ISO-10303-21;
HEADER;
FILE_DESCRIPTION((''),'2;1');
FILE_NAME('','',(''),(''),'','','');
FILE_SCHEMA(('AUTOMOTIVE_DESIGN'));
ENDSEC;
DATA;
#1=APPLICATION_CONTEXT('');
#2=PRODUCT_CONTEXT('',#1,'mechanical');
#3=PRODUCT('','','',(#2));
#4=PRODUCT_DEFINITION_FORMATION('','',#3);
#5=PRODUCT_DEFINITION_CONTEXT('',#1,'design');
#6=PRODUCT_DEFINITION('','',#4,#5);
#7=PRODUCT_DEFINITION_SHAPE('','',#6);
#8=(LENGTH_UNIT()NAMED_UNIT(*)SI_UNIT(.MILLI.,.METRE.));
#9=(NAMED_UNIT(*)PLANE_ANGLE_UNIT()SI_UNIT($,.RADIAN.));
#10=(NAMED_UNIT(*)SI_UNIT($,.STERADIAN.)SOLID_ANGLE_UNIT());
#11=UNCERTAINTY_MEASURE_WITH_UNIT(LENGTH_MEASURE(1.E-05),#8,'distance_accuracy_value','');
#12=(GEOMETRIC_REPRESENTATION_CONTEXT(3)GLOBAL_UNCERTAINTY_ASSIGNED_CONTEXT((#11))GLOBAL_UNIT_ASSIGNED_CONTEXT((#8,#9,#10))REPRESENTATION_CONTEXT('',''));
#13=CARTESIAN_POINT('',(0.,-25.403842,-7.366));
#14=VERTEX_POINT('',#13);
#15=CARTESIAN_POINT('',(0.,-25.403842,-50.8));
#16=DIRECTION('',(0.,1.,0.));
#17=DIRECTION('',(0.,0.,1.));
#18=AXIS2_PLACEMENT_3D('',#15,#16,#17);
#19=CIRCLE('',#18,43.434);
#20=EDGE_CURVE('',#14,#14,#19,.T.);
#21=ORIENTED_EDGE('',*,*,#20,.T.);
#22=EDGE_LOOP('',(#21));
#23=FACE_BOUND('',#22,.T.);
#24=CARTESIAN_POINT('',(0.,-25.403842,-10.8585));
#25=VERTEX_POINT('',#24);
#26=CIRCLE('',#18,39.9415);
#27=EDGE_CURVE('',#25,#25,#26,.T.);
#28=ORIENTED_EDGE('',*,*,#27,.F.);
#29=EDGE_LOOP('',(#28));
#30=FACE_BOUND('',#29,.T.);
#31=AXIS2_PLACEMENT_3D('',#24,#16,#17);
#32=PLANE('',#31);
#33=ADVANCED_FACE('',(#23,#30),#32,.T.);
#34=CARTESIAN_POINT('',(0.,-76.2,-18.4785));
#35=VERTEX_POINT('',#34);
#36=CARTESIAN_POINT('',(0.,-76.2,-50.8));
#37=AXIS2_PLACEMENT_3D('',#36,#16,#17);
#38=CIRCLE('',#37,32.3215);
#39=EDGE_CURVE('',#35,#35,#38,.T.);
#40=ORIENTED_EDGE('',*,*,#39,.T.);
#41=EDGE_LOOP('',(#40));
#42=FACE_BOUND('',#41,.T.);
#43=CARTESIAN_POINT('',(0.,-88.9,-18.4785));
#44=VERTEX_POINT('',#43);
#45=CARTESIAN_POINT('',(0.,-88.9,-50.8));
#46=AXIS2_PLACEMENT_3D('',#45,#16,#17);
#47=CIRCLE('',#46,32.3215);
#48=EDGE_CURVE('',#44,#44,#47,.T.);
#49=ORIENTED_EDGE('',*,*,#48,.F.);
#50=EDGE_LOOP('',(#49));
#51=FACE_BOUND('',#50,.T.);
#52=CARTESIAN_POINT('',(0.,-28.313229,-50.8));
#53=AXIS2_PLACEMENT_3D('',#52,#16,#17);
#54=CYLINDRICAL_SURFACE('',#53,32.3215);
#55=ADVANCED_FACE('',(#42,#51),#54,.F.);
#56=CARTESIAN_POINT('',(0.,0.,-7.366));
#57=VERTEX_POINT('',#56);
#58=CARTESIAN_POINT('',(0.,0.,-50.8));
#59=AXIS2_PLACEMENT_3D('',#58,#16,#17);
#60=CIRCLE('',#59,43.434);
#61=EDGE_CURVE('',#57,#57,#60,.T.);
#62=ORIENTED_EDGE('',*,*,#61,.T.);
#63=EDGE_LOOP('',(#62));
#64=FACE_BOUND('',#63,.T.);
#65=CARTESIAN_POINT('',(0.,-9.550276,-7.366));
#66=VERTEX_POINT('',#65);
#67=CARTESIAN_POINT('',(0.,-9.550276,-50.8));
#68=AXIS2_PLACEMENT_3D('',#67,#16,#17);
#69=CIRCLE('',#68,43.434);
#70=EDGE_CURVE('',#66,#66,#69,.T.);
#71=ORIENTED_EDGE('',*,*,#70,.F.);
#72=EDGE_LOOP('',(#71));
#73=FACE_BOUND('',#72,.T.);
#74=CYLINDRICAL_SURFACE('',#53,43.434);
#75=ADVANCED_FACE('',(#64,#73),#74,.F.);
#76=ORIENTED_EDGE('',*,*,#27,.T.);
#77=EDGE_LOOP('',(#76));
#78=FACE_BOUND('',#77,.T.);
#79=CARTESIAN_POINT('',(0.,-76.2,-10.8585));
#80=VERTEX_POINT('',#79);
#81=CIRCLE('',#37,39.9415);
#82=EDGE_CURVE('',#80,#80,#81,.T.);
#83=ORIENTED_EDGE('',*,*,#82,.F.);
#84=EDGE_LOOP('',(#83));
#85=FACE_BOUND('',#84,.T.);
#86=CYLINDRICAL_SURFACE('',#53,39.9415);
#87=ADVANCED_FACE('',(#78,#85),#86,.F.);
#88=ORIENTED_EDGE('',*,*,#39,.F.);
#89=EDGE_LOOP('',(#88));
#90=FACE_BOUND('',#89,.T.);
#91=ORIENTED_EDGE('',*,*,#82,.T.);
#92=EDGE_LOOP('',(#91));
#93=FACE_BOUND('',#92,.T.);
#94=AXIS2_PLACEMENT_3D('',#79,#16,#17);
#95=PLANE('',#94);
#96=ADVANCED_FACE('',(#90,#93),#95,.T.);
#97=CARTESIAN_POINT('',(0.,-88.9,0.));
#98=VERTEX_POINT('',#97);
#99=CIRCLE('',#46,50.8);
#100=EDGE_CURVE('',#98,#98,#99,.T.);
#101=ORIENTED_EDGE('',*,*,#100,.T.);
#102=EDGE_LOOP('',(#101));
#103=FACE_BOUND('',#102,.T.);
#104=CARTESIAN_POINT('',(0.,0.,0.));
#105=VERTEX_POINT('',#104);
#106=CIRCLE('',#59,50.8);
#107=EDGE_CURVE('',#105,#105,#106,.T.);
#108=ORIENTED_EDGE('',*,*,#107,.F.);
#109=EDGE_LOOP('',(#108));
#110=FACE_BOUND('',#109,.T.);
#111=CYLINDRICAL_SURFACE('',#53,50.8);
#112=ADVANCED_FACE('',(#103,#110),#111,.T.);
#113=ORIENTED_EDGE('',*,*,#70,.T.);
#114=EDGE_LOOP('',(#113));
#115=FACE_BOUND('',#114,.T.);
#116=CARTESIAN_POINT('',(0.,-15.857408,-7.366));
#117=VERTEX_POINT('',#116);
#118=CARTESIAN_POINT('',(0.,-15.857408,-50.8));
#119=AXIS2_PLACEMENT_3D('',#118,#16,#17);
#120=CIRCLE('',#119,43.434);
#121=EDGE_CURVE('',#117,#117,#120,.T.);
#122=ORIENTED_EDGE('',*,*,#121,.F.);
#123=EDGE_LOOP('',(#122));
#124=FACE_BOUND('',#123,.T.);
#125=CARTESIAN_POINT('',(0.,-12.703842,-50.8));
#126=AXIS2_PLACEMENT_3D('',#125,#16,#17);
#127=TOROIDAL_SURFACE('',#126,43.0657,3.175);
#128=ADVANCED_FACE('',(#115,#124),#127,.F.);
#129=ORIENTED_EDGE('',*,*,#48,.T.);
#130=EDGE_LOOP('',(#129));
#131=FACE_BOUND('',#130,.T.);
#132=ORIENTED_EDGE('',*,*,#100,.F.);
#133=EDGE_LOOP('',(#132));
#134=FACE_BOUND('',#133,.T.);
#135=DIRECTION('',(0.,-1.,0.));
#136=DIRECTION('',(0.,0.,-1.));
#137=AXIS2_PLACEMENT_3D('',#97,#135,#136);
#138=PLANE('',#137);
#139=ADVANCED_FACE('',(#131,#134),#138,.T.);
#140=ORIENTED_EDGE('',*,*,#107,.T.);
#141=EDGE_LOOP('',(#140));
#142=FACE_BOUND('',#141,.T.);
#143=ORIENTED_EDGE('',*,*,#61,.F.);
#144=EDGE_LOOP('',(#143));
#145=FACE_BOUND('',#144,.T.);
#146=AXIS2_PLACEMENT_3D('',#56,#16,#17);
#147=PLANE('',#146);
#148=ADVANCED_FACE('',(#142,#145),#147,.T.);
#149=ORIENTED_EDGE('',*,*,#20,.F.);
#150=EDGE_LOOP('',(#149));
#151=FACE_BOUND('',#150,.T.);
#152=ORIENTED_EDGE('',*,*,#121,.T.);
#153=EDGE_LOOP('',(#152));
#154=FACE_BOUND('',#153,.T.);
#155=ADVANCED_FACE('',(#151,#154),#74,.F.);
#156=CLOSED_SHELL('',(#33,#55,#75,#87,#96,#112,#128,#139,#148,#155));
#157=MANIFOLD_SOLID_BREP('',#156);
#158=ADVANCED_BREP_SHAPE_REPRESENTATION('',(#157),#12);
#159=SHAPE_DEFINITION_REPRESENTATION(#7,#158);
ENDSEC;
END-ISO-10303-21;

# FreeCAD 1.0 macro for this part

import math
import FreeCAD as App
import Part
import Sketcher
from FreeCAD import Vector
Q = App.Units.Quantity

doc = App.newDocument("Part")
body = doc.addObject("PartDesign::Body", "Body")

# Sketch on YZ plane
sketch1 = body.newObject("Sketcher::SketchObject", "Sketch")
sketch1.AttachmentSupport = (doc.getObject("YZ_Plane"), [""])
sketch1.MapMode = "FlatFace"
sketch1.addGeometry([
    Part.LineSegment(Vector(0, 0, 0), Vector(-88.9, 0, 0)),  # 0
    Part.LineSegment(Vector(-88.9, 0, 0), Vector(-88.9, -18.5, 0)),  # 1
    Part.LineSegment(Vector(-88.9, -18.5, 0), Vector(-76.2, -18.5, 0)),  # 2
    Part.LineSegment(Vector(-76.2, -18.5, 0), Vector(-76.2, -10.9, 0)),  # 3
    Part.LineSegment(Vector(-76.2, -10.9, 0), Vector(-25.4, -10.9, 0)),  # 4
    Part.LineSegment(Vector(-25.4, -10.9, 0), Vector(-25.4, -7.4, 0)),  # 5
    Part.LineSegment(Vector(-25.4, -7.4, 0), Vector(-15.9, -7.4, 0)),  # 6
    Part.ArcOfCircle(Part.Circle(Vector(-12.7, -7.7, 0), Vector(0, 0, 1), 3.2), math.radians(7), math.radians(173)),  # 7
    Part.LineSegment(Vector(-9.6, -7.4, 0), Vector(0, -7.4, 0)),  # 8
    Part.LineSegment(Vector(0, -7.4, 0), Vector(0, 0, 0)),  # 9
], False)
sketch1.addGeometry(Part.LineSegment(Vector(0, -50.8, 0), Vector(-88.9, -50.8, 0)), True)  # axis
sketch1.addConstraint([
    Sketcher.Constraint("Coincident", 0, 2, 1, 1),
    Sketcher.Constraint("Coincident", 1, 2, 2, 1),
    Sketcher.Constraint("Coincident", 2, 2, 3, 1),
    Sketcher.Constraint("Coincident", 3, 2, 4, 1),
    Sketcher.Constraint("Coincident", 4, 2, 5, 1),
    Sketcher.Constraint("Coincident", 5, 2, 6, 1),
    Sketcher.Constraint("Coincident", 6, 2, 7, 2),
    Sketcher.Constraint("Coincident", 7, 1, 8, 1),
    Sketcher.Constraint("Coincident", 8, 2, 9, 1),
    Sketcher.Constraint("Coincident", 9, 2, 0, 1),
    Sketcher.Constraint("Horizontal", 0),
    Sketcher.Constraint("Vertical", 1),
    Sketcher.Constraint("Horizontal", 2),
    Sketcher.Constraint("Vertical", 3),
    Sketcher.Constraint("Horizontal", 4),
    Sketcher.Constraint("Vertical", 5),
    Sketcher.Constraint("Horizontal", 6),
    Sketcher.Constraint("Horizontal", 8),
    Sketcher.Constraint("Vertical", 9),
    Sketcher.Constraint("Horizontal", 10),
    Sketcher.Constraint("Coincident", 9, 2, -1, 1),
    Sketcher.Constraint("PointOnObject", 10, 1, -2),
    Sketcher.Constraint("Horizontal", 6, 2, 7, 1),
    Sketcher.Constraint("Vertical", 1, 2, 10, 2),
    Sketcher.Constraint("DistanceX", 0, 2, 0, 1, Q("3.5 in")),
    Sketcher.Constraint("DistanceX", 2, 1, 2, 2, Q("0.5 in")),
    Sketcher.Constraint("DistanceY", 3, 1, 3, 2, Q("0.3 in")),
    Sketcher.Constraint("DistanceY", 10, 1, -1, 1, Q("2 in")),
    Sketcher.Constraint("Radius", 7, Q("0.125 in")),
    Sketcher.Constraint("DistanceY", 9, 1, 9, 2, Q("0.29 in")),
    Sketcher.Constraint("DistanceX", 4, 2, 7, 3, Q("0.5 in")),
    Sketcher.Constraint("DistanceY", 1, 2, 1, 1, Q("0.7275 in")),
    Sketcher.Constraint("DistanceY", 1, 2, 7, 3, Q("0.423 in")),
    Sketcher.Constraint("DistanceX", 4, 1, 4, 2, Q("50.796158 mm")),
])
revolution = body.newObject("PartDesign::Revolution", "Revolution")
revolution.Profile = sketch1
revolution.ReferenceAxis = (sketch1, ["Axis0"])
revolution.Angle = 360

doc.recompute()
